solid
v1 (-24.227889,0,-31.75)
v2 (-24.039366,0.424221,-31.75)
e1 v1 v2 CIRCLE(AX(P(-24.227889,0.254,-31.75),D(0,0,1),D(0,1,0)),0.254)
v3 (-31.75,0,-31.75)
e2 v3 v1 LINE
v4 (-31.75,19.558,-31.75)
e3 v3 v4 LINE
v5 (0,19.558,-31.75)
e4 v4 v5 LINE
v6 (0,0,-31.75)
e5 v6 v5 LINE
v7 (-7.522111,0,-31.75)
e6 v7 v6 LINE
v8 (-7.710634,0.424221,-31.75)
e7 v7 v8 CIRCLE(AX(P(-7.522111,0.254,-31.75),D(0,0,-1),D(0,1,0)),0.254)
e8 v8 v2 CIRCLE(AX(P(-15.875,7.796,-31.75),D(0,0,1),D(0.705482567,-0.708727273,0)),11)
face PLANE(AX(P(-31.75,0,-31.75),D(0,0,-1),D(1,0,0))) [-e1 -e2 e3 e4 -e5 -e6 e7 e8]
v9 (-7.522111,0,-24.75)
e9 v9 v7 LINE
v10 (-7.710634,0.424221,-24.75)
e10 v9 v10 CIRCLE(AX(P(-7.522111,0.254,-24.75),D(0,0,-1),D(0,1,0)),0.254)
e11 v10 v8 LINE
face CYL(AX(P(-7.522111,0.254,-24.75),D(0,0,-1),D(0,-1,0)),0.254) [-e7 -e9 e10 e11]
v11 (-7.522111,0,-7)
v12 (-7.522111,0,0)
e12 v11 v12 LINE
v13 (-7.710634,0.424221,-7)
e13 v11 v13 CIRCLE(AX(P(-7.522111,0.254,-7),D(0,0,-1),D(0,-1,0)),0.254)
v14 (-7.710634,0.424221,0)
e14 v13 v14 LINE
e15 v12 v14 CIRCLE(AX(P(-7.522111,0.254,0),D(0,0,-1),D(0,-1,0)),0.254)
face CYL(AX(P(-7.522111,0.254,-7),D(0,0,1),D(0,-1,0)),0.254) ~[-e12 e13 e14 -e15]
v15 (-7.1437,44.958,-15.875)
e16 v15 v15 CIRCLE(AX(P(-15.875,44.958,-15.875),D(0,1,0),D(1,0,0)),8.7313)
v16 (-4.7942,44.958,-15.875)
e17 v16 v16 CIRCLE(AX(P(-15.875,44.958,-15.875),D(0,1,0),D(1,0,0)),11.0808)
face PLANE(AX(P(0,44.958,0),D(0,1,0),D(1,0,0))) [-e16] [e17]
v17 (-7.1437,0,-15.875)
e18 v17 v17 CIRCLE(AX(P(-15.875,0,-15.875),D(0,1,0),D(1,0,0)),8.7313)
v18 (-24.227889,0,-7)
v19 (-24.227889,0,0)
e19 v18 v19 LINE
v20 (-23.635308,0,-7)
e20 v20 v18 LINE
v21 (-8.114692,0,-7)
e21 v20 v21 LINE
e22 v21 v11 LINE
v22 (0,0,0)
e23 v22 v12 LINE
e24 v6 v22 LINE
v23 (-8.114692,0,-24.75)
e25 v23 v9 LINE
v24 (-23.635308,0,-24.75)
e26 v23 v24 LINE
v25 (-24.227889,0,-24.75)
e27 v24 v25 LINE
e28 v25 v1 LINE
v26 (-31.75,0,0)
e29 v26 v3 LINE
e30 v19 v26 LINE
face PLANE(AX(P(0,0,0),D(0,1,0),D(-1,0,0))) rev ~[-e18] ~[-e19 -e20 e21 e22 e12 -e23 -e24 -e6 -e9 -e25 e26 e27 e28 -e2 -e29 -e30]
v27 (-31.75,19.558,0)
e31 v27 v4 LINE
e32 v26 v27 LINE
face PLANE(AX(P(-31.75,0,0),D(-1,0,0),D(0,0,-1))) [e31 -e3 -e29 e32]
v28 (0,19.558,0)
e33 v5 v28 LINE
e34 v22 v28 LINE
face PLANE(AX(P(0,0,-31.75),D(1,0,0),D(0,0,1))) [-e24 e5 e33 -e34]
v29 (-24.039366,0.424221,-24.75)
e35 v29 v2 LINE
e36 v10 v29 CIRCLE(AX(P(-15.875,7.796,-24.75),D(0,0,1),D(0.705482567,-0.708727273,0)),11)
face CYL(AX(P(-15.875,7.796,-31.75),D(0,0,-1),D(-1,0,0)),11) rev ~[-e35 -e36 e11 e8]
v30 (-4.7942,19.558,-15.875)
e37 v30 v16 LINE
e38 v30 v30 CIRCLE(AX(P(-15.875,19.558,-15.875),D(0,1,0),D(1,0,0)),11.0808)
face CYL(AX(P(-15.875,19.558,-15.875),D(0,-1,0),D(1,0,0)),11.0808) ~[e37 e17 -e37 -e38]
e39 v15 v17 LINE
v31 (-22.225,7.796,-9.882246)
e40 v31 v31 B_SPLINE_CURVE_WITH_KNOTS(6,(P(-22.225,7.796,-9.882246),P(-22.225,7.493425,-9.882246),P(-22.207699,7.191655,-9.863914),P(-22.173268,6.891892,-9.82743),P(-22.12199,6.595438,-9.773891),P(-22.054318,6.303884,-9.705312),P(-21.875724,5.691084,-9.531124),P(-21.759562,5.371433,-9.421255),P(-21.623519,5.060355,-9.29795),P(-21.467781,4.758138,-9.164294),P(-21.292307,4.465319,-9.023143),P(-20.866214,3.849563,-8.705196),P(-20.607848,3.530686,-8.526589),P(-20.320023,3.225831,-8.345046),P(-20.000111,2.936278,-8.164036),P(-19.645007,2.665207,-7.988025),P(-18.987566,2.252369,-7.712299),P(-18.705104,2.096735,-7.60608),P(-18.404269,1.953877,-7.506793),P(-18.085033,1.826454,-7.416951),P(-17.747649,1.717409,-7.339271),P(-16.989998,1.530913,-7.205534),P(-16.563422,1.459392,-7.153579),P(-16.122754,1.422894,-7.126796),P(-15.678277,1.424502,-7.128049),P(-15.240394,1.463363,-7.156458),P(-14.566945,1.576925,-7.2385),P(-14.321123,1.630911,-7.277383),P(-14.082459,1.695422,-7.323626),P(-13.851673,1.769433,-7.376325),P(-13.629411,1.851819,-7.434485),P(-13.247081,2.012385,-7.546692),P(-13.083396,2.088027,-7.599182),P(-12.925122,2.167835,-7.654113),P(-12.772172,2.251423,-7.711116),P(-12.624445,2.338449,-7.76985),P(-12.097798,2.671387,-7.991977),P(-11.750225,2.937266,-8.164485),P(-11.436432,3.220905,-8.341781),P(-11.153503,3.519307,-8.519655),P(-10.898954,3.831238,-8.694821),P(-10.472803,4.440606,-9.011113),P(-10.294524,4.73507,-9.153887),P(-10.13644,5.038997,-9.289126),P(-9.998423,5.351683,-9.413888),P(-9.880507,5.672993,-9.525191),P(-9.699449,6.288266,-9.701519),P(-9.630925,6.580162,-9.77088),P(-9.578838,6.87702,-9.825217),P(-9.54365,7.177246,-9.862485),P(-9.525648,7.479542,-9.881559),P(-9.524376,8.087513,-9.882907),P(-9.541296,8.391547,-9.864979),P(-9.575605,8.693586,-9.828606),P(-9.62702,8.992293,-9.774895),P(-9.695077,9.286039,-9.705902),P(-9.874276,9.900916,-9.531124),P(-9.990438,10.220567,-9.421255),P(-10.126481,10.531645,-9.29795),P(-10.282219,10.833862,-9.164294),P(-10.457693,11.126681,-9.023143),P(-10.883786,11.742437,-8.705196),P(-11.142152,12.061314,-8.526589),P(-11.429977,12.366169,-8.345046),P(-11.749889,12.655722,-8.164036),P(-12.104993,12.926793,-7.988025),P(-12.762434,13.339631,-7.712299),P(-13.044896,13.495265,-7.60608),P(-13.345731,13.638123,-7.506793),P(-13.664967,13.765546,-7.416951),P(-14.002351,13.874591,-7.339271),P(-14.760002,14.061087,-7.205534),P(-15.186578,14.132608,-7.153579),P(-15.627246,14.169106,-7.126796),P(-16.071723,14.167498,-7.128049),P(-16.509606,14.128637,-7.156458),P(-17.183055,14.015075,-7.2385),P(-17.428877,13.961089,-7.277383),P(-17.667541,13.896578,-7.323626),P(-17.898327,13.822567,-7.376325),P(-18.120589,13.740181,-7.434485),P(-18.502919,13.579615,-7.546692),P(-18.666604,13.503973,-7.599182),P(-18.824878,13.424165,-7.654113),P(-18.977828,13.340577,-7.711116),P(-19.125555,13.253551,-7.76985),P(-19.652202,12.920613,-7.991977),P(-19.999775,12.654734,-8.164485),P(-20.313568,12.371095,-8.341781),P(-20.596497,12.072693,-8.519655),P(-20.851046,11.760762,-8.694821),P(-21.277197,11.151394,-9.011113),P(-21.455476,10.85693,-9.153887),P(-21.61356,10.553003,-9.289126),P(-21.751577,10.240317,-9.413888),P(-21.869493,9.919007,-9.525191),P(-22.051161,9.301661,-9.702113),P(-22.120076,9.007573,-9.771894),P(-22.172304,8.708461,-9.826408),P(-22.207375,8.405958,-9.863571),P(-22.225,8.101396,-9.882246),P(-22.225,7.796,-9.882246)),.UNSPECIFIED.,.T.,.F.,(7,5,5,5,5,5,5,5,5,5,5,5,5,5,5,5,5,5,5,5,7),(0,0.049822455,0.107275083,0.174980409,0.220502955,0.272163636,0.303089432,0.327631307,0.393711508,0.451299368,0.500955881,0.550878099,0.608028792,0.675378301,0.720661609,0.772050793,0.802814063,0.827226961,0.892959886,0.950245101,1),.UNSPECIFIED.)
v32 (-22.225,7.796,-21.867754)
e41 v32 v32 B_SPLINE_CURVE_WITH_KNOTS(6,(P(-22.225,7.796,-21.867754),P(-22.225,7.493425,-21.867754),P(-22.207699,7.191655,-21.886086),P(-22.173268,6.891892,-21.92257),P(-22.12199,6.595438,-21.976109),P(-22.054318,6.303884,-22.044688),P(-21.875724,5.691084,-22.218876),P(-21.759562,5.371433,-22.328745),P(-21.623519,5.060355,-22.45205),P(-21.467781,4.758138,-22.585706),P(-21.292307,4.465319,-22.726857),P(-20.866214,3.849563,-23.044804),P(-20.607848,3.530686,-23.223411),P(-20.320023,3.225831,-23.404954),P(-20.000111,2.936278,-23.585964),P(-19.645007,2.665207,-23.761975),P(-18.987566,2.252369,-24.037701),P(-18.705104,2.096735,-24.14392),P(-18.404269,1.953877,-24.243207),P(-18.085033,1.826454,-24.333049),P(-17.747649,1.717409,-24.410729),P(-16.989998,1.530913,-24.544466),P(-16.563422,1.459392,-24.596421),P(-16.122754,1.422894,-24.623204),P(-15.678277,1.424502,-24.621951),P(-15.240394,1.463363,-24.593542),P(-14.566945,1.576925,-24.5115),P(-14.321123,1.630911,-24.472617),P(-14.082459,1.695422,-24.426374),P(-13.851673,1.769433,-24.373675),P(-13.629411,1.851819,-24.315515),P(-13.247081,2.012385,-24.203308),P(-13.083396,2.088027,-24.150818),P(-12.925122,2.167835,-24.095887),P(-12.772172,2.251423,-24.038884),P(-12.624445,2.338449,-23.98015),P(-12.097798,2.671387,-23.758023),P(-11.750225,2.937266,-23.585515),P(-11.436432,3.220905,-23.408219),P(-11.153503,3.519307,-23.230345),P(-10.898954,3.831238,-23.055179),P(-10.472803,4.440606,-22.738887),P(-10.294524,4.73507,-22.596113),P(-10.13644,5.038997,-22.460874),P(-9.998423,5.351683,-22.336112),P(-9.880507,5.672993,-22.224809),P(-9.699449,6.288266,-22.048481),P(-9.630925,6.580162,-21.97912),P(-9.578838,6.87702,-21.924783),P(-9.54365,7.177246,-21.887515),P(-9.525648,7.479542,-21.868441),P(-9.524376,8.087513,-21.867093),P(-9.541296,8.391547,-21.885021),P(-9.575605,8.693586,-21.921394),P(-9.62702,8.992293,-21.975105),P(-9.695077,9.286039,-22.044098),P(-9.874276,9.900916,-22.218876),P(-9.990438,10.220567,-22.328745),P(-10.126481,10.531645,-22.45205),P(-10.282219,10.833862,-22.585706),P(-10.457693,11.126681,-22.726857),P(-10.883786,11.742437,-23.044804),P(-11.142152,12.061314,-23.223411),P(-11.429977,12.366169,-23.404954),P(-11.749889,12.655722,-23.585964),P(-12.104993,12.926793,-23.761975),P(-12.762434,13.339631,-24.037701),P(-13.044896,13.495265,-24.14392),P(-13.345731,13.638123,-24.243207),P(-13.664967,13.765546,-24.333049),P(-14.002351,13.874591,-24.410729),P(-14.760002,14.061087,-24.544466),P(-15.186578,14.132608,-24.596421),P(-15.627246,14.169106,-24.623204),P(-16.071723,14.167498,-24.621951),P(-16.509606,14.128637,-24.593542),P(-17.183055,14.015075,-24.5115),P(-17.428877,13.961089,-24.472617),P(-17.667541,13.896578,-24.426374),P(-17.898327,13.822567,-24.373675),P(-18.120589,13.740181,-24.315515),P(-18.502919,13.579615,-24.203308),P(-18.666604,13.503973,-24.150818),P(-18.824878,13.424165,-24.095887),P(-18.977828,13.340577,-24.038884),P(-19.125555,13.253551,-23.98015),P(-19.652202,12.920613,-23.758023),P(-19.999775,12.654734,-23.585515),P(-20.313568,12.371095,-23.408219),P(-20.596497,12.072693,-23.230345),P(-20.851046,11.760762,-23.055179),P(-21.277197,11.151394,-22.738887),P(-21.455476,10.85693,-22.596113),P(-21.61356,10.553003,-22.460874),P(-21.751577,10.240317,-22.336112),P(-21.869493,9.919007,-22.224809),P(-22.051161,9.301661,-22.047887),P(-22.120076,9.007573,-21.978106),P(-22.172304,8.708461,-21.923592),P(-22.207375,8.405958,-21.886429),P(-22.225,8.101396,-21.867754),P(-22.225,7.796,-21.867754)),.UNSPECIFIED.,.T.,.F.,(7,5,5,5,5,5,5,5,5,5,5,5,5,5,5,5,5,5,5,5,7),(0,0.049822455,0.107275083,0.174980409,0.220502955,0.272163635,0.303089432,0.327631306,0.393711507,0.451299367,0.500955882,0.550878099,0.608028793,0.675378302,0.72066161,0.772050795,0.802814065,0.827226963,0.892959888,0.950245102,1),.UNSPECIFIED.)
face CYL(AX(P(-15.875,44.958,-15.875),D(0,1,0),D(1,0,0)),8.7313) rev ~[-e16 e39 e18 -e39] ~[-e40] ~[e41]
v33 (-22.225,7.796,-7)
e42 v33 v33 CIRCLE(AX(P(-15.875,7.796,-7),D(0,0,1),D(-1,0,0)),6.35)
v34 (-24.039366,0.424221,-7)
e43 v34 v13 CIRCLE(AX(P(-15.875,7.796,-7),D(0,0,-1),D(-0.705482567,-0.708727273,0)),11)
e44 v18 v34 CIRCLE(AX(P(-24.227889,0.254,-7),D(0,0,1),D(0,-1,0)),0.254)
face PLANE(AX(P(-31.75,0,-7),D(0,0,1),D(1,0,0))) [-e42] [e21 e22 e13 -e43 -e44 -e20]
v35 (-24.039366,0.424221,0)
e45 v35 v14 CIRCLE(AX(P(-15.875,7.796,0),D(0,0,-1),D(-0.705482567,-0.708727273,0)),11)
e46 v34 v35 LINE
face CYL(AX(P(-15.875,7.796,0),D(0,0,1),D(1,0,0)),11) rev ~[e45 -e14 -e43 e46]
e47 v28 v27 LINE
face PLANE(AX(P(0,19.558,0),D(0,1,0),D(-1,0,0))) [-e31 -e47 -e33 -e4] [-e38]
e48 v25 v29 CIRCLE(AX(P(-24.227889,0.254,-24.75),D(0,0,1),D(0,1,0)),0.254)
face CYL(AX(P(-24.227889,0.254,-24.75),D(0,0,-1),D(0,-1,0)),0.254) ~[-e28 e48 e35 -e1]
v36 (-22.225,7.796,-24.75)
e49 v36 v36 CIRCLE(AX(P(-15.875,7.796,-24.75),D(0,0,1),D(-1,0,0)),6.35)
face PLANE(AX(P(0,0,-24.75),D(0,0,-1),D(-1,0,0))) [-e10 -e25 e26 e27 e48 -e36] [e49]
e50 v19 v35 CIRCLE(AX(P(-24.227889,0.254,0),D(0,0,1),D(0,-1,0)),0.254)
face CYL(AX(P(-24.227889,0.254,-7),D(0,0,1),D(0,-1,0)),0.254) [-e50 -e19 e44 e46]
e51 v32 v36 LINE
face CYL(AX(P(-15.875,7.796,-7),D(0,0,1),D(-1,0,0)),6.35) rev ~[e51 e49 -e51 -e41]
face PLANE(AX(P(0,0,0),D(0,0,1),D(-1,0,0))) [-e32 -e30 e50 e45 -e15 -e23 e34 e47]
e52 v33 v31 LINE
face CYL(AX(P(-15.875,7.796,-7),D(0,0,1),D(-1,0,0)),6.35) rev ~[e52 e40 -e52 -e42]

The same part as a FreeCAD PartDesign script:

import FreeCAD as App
import Part
import Sketcher
from FreeCAD import Vector
Q = App.Units.Quantity


def edges_at(feature, points):
    """Names of the edges that pass closest to the given points."""
    edges = feature.Shape.Edges
    near = lambda p: min(range(len(edges)), key=lambda i: edges[i].distToShape(Part.Vertex(*p))[0])
    return sorted({f"Edge{near(p) + 1}" for p in points})

doc = App.newDocument("Part")
body = doc.addObject("PartDesign::Body", "Body")

# Sketch on XZ plane
sketch1 = body.newObject("Sketcher::SketchObject", "Sketch")
sketch1.AttachmentSupport = (doc.getObject("XZ_Plane"), [""])
sketch1.MapMode = "FlatFace"
sketch1.addGeometry([
    Part.LineSegment(Vector(-32, 0, 0), Vector(0, 0, 0)),
    Part.LineSegment(Vector(0, 0, 0), Vector(0, -32, 0)),
    Part.LineSegment(Vector(0, -32, 0), Vector(-32, -32, 0)),
    Part.LineSegment(Vector(-32, -32, 0), Vector(-32, 0, 0)),
], False)
sketch1.addConstraint([
    Sketcher.Constraint("Coincident", 0, 2, 1, 1),
    Sketcher.Constraint("Coincident", 1, 2, 2, 1),
    Sketcher.Constraint("Coincident", 2, 2, 3, 1),
    Sketcher.Constraint("Coincident", 3, 2, 0, 1),
    Sketcher.Constraint("Horizontal", 0),
    Sketcher.Constraint("Vertical", 1),
    Sketcher.Constraint("Horizontal", 2),
    Sketcher.Constraint("Vertical", 3),
    Sketcher.Constraint("Coincident", 0, 2, -1, 1),
    Sketcher.Constraint("Equal", 2, 1),
    Sketcher.Constraint("DistanceX", 0, 1, 0, 2, Q("1.25 in")),
])
pad1 = body.newObject("PartDesign::Pad", "Pad")
pad1.Profile = sketch1
pad1.Length = Q("0.77 in")
pad1.Reversed = True

# Sketch on XZ plane
sketch2 = body.newObject("Sketcher::SketchObject", "Sketch001")
sketch2.AttachmentSupport = (doc.getObject("XZ_Plane"), [""])
sketch2.MapMode = "FlatFace"
sketch2.AttachmentOffset = App.Placement(Vector(0, 0, -0.77 * 25.4), App.Rotation())
sketch2.addGeometry(Part.Circle(Vector(-16, -16, 0), Vector(0, 0, 1), 11), False)
sketch2.addConstraint([
    Sketcher.Constraint("Diameter", 0, Q("0.8725 in")),
    Sketcher.Constraint("DistanceX", 0, 3, -1, 1, Q("0.625 in")),
    Sketcher.Constraint("DistanceY", 0, 3, -1, 1, Q("0.625 in")),
])
pad2 = body.newObject("PartDesign::Pad", "Pad001")
pad2.Profile = sketch2
pad2.Length = Q("1 in")
pad2.Reversed = True

# Sketch on XZ plane
sketch3 = body.newObject("Sketcher::SketchObject", "Sketch002")
sketch3.AttachmentSupport = (doc.getObject("XZ_Plane"), [""])
sketch3.MapMode = "FlatFace"
sketch3.AttachmentOffset = App.Placement(Vector(0, 0, -1.77 * 25.4), App.Rotation())
sketch3.addGeometry(Part.Circle(Vector(-16, -16, 0), Vector(0, 0, 1), 9), False)
sketch3.addConstraint([
    Sketcher.Constraint("Diameter", 0, Q("0.6875 in")),
    Sketcher.Constraint("DistanceX", 0, 3, -1, 1, Q("0.625 in")),
    Sketcher.Constraint("DistanceY", 0, 3, -1, 1, Q("0.625 in")),
])
pocket1 = body.newObject("PartDesign::Pocket", "Pocket")
pocket1.Profile = sketch3
pocket1.Type = "ThroughAll"
pocket1.Reversed = True

# Sketch on XY plane
sketch4 = body.newObject("Sketcher::SketchObject", "Sketch003")
sketch4.AttachmentSupport = (doc.getObject("XY_Plane"), [""])
sketch4.MapMode = "FlatFace"
sketch4.addGeometry(Part.Circle(Vector(-16, 8, 0), Vector(0, 0, 1), 11), False)
sketch4.addConstraint([
    Sketcher.Constraint("Diameter", 0, 22.0),
    Sketcher.Constraint("DistanceX", 0, 3, -1, 1, Q("0.625 in")),
    Sketcher.Constraint("DistanceY", -1, 1, 0, 3, 7.796),
])
pocket2 = body.newObject("PartDesign::Pocket", "Pocket001")
pocket2.Profile = sketch4
pocket2.Length = Q("0.2755906 in")

# Sketch on XY plane
sketch5 = body.newObject("Sketcher::SketchObject", "Sketch004")
sketch5.AttachmentSupport = (doc.getObject("XY_Plane"), [""])
sketch5.MapMode = "FlatFace"
sketch5.AttachmentOffset = App.Placement(Vector(0, 0, -1.25 * 25.4), App.Rotation())
sketch5.addGeometry(Part.Circle(Vector(-16, 8, 0), Vector(0, 0, 1), 11), False)
sketch5.addConstraint([
    Sketcher.Constraint("Diameter", 0, 22.0),
    Sketcher.Constraint("DistanceX", 0, 3, -1, 1, Q("0.625 in")),
    Sketcher.Constraint("DistanceY", -1, 1, 0, 3, 7.796),
])
pocket3 = body.newObject("PartDesign::Pocket", "Pocket002")
pocket3.Profile = sketch5
pocket3.Length = Q("0.2755906 in")
pocket3.Reversed = True

# Sketch on XY plane
sketch6 = body.newObject("Sketcher::SketchObject", "Sketch005")
sketch6.AttachmentSupport = (doc.getObject("XY_Plane"), [""])
sketch6.MapMode = "FlatFace"
sketch6.AttachmentOffset = App.Placement(Vector(0, 0, -0.2755906 * 25.4), App.Rotation())
sketch6.addGeometry(Part.Circle(Vector(-16, 8, 0), Vector(0, 0, 1), 6), False)
sketch6.addConstraint([
    Sketcher.Constraint("Diameter", 0, Q("0.5 in")),
    Sketcher.Constraint("DistanceX", 0, 3, -1, 1, Q("0.625 in")),
    Sketcher.Constraint("DistanceY", -1, 1, 0, 3, 7.796),
])
pocket4 = body.newObject("PartDesign::Pocket", "Pocket003")
pocket4.Profile = sketch6
pocket4.Type = "ThroughAll"
doc.recompute()

fillet = body.newObject("PartDesign::Fillet", "Fillet")
fillet.Base = (pocket4, edges_at(pocket4, [
    (-8.115, 0, -3.5),
    (-23.635, 0, -3.5),
    (-23.635, 0, -28.25),
    (-8.115, 0, -28.25),
]))
fillet.Radius = Q("0.01 in")

doc.recompute()
